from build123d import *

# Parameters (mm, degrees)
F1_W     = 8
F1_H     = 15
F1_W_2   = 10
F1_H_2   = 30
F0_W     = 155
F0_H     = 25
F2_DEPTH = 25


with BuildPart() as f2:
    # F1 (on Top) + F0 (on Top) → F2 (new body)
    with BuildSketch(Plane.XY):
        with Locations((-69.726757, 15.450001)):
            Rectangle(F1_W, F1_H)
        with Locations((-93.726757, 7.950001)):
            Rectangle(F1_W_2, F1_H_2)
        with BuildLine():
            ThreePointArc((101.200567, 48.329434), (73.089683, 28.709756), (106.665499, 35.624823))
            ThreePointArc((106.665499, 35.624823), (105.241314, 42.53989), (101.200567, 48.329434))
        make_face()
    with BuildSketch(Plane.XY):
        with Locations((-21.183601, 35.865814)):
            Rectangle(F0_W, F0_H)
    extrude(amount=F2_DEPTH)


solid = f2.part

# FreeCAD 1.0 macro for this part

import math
import FreeCAD as App
import Part
import Sketcher
from FreeCAD import Vector
Q = App.Units.Quantity


def add_polygon(sketch, points):
    """Adds a closed chain of lines whose ends are joined by coincident constraints."""
    first, n = sketch.GeometryCount, len(points)
    for a, b in zip(points, points[1:] + points[:1]):
        sketch.addGeometry(Part.LineSegment(App.Vector(*a, 0), App.Vector(*b, 0)), False)
    for i in range(n):
        sketch.addConstraint(Sketcher.Constraint("Coincident", first + i, 2, first + (i + 1) % n, 1))

doc = App.newDocument("Part")
body = doc.addObject("PartDesign::Body", "Body")
body.AllowCompound = True

sketch1 = body.newObject("Sketcher::SketchObject", "Sketch")
sketch1.AttachmentSupport = (doc.getObject("XY_Plane"), [""])
sketch1.MapMode = "FlatFace"
add_polygon(sketch1, [(-73.726757, 22.950001), (-73.726757, 7.950001), (-65.726757, 7.950001), (-65.726757, 22.950001)])
add_polygon(sketch1, [(-98.726757, 22.950001), (-98.726757, -7.049999), (-88.726757, -7.049999), (-88.726757, 22.950001)])
sketch1.addGeometry(Part.ArcOfCircle(Part.Circle(Vector(89.165499, 35.624823, 0), Vector(0, 0, 1), 17.5), math.radians(46.550247), math.radians(360)), False)
sketch1.addGeometry(Part.ArcOfCircle(Part.Circle(Vector(89.165492, 35.62482, 0), Vector(0, 0, 1), 17.500007), math.radians(0.00001), math.radians(46.550237)), False)
add_polygon(sketch1, [(-98.683601, 48.365814), (-98.683601, 23.365814), (56.316399, 23.365814), (56.316399, 48.365814)])
sketch1.addConstraint([
    Sketcher.Constraint("Tangent", 8, 1, 9, 2),
    Sketcher.Constraint("Coincident", 9, 1, 8, 2),
    Sketcher.Constraint("Vertical", 0),
    Sketcher.Constraint("Horizontal", 1),
    Sketcher.Constraint("Vertical", 2),
    Sketcher.Constraint("Horizontal", 3),
    Sketcher.Constraint("Vertical", 4),
    Sketcher.Constraint("Horizontal", 5),
    Sketcher.Constraint("Vertical", 6),
    Sketcher.Constraint("Horizontal", 7),
    Sketcher.Constraint("Vertical", 10),
    Sketcher.Constraint("Horizontal", 11),
    Sketcher.Constraint("Vertical", 12),
    Sketcher.Constraint("Horizontal", 13),
    Sketcher.Constraint("Horizontal", 3, 2, 6, 2),
    Sketcher.Constraint("Horizontal", 8, 3, 9, 1),
    Sketcher.Constraint("Radius", 8, Q("17.5 mm")),
    Sketcher.Constraint("DistanceX", 1, 1, 1, 2, Q("8 mm")),
    Sketcher.Constraint("DistanceX", 5, 1, 5, 2, Q("10 mm")),
    Sketcher.Constraint("DistanceX", 11, 1, 11, 2, Q("155 mm")),
    Sketcher.Constraint("DistanceY", 0, 2, 0, 1, Q("15 mm")),
    Sketcher.Constraint("DistanceY", 4, 2, 4, 1, Q("30 mm")),
    Sketcher.Constraint("DistanceY", 10, 2, 10, 1, Q("25 mm")),
    Sketcher.Constraint("DistanceX", 4, 2, 0, 2, Q("25 mm")),
    Sketcher.Constraint("DistanceY", -1, 1, 0, 2, Q("7.950001 mm")),
    Sketcher.Constraint("DistanceX", -1, 1, 8, 3, Q("89.165499 mm")),
    Sketcher.Constraint("DistanceX", 10, 2, -1, 1, Q("98.683601 mm")),
    Sketcher.Constraint("DistanceY", -1, 1, 9, 3, Q("35.62482 mm")),
    Sketcher.Constraint("DistanceX", 0, 2, 9, 3, Q("162.892249 mm")),
    Sketcher.Constraint("DistanceX", 8, 3, 8, 1, Q("12.035068 mm")),
    Sketcher.Constraint("DistanceY", 11, 2, 8, 3, Q("12.259009 mm")),
])
pad1 = body.newObject("PartDesign::Pad", "Pad")
pad1.Profile = sketch1
pad1.Length = 25

doc.recompute()
